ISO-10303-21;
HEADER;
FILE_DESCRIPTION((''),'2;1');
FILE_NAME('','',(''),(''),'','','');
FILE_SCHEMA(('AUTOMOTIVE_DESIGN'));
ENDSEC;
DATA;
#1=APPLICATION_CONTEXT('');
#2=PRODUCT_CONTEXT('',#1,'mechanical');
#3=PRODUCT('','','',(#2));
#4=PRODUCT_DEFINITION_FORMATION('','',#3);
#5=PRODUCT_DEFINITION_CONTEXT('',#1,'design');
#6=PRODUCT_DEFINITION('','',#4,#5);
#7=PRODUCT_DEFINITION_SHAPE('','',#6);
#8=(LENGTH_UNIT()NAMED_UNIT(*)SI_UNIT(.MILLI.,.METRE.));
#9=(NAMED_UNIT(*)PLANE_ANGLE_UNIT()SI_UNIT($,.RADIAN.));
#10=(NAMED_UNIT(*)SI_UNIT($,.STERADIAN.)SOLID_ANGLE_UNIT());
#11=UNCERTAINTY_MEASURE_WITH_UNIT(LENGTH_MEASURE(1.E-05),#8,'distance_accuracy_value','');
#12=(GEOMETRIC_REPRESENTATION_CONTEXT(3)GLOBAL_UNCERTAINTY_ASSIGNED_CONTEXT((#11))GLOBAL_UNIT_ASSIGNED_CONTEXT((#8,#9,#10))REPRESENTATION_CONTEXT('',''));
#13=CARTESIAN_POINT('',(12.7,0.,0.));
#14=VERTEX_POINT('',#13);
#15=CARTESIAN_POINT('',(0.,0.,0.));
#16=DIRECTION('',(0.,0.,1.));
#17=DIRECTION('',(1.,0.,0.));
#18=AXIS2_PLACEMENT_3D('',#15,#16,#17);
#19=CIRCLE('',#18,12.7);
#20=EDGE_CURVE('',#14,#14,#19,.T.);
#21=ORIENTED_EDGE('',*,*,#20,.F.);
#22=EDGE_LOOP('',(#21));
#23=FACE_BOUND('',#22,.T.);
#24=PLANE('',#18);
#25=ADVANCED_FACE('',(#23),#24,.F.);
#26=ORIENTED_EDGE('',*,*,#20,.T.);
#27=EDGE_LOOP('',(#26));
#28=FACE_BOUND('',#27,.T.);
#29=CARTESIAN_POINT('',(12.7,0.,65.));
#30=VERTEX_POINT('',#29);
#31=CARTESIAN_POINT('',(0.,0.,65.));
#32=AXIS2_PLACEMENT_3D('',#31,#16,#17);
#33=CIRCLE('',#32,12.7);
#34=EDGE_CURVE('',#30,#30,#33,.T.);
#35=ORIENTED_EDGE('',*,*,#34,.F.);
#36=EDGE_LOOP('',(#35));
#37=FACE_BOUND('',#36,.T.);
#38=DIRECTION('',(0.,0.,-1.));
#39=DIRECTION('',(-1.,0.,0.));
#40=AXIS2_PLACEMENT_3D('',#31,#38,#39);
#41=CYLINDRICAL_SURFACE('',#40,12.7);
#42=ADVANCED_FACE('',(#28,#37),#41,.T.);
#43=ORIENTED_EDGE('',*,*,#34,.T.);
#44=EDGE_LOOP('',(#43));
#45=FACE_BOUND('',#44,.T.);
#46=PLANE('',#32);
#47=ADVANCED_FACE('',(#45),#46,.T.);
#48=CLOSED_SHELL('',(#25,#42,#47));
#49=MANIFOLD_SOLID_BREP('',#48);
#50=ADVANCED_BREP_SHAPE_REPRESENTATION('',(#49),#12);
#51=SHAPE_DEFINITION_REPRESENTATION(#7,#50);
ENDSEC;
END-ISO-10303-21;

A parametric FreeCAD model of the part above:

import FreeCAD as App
import Part
import Sketcher
from FreeCAD import Vector

doc = App.newDocument("Part")
params = doc.addObject("Spreadsheet::Sheet", "Params")
for row, (alias, value) in enumerate([
    ("sketch1_diameter", "25.4 mm"),
    ("pad1_length", "65 mm"),
], start=1):
    params.set(f"A{row}", alias)
    params.set(f"B{row}", "=" + value)
    params.setAlias(f"B{row}", alias)

body = doc.addObject("PartDesign::Body", "Body")

# Sketch on XY plane
sketch1 = body.newObject("Sketcher::SketchObject", "Sketch")
sketch1.AttachmentSupport = (doc.getObject("XY_Plane"), [""])
sketch1.MapMode = "FlatFace"
sketch1.addGeometry(Part.Circle(Vector(0, 0, 0), Vector(0, 0, 1), 13), False)
sketch1.addConstraint([
    Sketcher.Constraint("Coincident", 0, 3, -1, 1),
    Sketcher.Constraint("Diameter", 0, 25.4),
])
sketch1.setExpression("Constraints[1]", "Params.sketch1_diameter")
pad1 = body.newObject("PartDesign::Pad", "Pad")
pad1.Profile = sketch1
pad1.setExpression("Length", "Params.pad1_length")

doc.recompute()
